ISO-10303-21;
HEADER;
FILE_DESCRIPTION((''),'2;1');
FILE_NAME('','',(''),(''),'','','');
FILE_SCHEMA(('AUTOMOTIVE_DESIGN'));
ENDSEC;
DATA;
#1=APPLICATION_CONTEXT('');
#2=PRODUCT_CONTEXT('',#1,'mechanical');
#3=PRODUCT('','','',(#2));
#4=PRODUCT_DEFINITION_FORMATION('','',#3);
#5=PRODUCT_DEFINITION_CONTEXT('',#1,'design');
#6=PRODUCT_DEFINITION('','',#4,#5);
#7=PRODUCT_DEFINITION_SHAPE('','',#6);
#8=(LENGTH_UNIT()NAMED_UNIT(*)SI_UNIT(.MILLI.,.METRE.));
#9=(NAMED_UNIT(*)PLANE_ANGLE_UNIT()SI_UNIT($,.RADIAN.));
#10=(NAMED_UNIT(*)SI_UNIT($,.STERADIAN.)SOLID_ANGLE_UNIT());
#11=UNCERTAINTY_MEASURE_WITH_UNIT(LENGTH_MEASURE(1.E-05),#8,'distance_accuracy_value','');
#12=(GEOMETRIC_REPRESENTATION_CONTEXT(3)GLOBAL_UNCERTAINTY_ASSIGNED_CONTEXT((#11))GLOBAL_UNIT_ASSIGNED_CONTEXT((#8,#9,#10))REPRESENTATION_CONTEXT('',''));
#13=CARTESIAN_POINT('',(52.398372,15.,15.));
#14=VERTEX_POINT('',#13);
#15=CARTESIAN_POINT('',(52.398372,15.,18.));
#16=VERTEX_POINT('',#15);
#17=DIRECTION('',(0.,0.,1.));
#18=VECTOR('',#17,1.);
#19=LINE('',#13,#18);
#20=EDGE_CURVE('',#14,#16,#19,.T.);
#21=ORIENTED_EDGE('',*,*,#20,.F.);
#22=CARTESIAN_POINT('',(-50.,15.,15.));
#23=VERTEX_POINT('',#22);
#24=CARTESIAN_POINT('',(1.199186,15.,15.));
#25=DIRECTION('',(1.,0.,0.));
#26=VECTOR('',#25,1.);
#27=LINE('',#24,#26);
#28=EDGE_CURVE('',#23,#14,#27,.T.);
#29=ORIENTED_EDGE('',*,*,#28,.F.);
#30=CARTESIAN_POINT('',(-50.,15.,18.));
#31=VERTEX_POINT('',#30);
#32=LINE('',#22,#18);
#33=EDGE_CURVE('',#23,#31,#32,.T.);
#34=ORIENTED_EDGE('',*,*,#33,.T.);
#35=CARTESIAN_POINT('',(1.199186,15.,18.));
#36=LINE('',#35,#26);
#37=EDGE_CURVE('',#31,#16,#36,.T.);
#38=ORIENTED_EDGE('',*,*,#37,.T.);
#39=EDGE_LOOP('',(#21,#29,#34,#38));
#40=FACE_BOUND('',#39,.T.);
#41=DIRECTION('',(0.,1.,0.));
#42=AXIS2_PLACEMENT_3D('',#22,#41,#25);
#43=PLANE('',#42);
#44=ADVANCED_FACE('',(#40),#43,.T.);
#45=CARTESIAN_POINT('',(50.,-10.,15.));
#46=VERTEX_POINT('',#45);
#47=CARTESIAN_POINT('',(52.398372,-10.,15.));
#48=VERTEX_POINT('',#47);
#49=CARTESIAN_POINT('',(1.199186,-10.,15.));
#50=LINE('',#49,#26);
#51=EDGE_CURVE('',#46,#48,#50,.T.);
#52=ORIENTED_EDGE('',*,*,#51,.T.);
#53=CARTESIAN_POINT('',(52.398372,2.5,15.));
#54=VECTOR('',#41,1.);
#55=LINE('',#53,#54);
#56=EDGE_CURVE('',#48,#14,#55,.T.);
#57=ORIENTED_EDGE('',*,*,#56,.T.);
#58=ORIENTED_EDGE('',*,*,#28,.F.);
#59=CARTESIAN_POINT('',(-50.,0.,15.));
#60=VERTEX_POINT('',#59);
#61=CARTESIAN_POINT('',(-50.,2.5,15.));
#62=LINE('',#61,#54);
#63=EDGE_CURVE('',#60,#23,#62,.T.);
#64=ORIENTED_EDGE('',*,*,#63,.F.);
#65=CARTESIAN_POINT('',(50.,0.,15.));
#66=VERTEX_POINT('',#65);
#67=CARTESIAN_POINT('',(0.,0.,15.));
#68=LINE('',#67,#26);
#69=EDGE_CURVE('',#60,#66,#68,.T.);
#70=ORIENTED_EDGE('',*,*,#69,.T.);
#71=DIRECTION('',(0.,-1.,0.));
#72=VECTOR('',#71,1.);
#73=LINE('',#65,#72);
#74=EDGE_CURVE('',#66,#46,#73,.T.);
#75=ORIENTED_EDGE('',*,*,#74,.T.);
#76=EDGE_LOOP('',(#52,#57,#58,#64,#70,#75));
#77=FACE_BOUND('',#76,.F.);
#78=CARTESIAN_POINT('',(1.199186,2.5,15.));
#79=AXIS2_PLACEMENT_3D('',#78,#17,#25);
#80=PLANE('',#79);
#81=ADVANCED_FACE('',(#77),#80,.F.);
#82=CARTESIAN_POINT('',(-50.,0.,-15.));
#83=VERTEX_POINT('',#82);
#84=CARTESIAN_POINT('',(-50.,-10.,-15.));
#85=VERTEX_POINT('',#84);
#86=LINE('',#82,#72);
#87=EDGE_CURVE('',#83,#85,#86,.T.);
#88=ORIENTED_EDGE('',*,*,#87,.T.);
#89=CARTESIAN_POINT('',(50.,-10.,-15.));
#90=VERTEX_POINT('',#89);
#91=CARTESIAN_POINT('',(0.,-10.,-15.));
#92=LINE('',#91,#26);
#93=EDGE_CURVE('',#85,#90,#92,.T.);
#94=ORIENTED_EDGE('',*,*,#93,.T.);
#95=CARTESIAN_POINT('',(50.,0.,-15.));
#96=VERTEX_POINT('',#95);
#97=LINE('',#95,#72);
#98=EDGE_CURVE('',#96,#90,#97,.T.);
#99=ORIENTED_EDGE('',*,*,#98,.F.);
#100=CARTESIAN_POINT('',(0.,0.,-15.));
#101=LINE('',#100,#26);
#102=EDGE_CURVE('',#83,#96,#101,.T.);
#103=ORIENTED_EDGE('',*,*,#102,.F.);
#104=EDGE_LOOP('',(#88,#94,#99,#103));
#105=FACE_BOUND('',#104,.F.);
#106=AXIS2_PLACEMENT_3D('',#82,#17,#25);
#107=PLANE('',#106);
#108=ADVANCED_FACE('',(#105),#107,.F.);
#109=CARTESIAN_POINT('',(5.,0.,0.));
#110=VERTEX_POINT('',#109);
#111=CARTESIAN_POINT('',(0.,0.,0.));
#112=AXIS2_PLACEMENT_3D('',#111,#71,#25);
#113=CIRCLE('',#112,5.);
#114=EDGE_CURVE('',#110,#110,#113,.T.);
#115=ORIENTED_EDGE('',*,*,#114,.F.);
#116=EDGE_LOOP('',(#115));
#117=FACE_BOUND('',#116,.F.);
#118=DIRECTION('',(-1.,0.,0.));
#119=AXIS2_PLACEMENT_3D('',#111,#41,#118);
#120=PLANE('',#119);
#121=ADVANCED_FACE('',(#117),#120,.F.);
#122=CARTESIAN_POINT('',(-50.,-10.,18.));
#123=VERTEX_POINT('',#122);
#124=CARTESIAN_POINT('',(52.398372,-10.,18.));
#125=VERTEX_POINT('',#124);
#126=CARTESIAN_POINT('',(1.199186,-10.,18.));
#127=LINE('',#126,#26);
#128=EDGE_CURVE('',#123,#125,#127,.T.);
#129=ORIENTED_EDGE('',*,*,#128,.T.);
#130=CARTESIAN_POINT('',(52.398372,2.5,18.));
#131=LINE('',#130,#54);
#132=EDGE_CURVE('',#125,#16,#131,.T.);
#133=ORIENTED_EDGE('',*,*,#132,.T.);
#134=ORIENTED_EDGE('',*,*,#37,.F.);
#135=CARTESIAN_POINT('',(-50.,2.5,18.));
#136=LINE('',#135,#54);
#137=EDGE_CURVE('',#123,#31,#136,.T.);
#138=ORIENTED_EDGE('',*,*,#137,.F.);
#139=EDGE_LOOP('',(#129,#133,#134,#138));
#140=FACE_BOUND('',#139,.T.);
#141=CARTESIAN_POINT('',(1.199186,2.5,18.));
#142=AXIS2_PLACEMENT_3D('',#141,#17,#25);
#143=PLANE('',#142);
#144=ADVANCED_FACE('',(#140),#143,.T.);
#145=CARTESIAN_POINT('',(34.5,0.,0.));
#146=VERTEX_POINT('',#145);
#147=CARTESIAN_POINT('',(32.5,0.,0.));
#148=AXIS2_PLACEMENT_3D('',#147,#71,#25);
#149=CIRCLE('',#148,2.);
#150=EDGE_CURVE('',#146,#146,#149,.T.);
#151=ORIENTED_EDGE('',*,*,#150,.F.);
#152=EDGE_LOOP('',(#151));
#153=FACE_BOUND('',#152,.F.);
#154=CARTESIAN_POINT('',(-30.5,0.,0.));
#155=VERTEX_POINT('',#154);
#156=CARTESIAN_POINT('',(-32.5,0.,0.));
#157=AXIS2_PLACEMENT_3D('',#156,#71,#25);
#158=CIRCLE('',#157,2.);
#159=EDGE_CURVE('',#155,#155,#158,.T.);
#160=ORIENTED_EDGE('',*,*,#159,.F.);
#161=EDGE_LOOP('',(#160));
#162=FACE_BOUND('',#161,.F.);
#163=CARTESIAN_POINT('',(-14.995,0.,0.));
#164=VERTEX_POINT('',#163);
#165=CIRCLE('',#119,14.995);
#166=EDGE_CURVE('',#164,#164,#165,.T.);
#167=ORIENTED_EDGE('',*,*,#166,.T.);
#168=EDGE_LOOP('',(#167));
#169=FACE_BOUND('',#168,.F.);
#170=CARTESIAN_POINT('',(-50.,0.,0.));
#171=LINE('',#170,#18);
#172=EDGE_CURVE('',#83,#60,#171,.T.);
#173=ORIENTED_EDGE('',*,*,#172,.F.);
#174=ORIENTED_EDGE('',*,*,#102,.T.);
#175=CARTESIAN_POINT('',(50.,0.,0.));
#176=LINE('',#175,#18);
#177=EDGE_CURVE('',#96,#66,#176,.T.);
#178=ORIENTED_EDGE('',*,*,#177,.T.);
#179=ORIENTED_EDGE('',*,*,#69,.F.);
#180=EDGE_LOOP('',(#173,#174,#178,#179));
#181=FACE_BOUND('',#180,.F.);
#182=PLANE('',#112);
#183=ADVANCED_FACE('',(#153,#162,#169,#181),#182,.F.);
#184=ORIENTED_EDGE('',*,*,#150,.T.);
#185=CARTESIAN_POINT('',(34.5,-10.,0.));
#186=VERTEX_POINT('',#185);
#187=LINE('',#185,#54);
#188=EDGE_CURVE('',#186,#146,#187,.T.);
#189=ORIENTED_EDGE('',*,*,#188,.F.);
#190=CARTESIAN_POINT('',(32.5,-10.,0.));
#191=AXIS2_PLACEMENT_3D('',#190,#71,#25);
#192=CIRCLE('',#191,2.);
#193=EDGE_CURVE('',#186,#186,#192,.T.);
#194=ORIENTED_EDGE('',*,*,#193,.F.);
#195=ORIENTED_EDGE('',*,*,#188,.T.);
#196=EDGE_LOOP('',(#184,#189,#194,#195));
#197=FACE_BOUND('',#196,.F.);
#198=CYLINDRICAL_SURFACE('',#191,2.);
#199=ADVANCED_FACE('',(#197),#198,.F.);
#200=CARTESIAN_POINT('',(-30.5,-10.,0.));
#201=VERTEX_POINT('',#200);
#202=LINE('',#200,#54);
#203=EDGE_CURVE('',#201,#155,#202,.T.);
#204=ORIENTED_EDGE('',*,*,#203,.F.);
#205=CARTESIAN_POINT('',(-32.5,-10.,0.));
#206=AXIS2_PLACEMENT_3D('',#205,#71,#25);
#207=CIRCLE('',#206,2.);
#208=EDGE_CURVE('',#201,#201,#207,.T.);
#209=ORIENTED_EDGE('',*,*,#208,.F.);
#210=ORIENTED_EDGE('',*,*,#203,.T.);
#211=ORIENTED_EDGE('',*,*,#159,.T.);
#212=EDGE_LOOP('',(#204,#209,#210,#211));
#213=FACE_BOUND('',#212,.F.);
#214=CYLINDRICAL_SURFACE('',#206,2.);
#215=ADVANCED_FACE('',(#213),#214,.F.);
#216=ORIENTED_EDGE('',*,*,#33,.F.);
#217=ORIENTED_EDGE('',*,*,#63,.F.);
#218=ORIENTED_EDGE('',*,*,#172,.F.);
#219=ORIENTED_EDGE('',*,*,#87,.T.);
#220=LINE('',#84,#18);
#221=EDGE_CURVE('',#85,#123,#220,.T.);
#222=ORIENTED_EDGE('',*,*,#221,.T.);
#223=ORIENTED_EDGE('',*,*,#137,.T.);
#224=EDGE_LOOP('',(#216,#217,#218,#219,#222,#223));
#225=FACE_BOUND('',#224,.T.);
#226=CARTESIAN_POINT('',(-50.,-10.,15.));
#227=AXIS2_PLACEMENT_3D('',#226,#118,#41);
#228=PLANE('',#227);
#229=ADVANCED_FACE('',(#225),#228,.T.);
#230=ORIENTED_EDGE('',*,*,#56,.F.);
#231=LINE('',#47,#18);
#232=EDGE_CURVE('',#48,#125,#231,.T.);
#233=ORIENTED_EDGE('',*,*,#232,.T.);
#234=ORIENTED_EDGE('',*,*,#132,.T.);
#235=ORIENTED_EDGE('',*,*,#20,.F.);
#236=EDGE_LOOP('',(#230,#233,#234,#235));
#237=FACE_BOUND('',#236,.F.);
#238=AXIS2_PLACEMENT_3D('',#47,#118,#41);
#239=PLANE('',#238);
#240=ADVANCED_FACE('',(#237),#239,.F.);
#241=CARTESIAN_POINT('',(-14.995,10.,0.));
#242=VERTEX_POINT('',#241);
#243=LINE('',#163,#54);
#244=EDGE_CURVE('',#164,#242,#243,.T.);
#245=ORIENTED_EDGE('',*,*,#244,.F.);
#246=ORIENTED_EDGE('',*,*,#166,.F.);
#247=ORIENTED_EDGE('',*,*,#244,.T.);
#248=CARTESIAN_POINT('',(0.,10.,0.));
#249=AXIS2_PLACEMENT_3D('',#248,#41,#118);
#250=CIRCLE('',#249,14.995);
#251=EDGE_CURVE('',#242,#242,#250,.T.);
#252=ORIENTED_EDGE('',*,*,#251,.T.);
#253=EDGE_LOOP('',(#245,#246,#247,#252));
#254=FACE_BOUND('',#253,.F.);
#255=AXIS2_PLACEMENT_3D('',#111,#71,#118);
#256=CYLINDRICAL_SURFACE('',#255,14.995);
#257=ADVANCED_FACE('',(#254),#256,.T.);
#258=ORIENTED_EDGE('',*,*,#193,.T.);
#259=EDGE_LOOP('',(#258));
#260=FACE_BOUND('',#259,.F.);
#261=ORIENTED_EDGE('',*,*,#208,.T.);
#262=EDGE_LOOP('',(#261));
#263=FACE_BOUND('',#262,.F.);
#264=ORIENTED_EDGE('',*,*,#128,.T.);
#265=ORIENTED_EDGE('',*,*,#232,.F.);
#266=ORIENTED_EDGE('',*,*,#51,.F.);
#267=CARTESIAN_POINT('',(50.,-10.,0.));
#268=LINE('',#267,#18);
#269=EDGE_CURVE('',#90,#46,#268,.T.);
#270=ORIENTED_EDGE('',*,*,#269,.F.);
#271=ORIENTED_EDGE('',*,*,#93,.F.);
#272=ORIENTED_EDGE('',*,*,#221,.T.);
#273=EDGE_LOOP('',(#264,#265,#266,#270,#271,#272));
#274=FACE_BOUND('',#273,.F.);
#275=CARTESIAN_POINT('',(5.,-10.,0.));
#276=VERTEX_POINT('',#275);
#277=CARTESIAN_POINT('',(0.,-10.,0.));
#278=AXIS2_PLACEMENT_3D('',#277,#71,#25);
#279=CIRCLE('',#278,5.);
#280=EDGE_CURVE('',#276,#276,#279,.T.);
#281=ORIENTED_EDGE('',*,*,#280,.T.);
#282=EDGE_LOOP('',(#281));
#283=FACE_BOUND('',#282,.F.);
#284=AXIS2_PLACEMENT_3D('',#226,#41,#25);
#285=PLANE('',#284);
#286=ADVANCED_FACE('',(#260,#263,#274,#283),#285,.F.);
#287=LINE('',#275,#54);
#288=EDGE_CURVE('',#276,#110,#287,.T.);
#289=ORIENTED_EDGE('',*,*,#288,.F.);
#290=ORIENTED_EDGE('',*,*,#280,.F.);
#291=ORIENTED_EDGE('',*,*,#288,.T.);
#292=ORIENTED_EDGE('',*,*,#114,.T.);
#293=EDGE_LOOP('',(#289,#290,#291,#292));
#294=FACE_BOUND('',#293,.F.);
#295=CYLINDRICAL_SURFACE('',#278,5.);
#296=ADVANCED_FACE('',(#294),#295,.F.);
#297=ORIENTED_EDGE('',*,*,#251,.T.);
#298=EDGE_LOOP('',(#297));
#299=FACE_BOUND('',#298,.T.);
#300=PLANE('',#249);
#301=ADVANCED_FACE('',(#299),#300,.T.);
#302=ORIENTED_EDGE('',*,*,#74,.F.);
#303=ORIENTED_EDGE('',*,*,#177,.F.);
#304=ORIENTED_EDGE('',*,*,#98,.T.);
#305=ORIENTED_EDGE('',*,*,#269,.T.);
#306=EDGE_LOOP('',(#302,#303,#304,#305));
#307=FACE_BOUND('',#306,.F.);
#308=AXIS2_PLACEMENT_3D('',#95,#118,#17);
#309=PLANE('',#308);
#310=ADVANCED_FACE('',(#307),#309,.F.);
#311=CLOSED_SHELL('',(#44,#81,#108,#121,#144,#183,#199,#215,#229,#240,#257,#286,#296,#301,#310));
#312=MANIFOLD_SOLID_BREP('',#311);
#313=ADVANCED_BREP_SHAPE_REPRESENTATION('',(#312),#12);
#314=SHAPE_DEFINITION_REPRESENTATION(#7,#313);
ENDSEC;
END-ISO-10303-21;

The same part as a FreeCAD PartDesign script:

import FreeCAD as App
import Part
import Sketcher

V = App.Vector
Q = App.Units.Quantity

doc = App.newDocument("Part")
body = doc.addObject("PartDesign::Body", "Body")

sketch1 = body.newObject("Sketcher::SketchObject", "Sketch")
sketch1.AttachmentSupport = (doc.getObject("XZ_Plane"), [""])
sketch1.MapMode = "FlatFace"
sketch1.addGeometry([
    Part.LineSegment(V(-50, 15, 0), V(-50, -15, 0)),
    Part.LineSegment(V(-50, -15, 0), V(50, -15, 0)),
    Part.LineSegment(V(50, -15, 0), V(50, 15, 0)),
    Part.LineSegment(V(50, 15, 0), V(-50, 15, 0)),
], False)
sketch1.addConstraint([
    Sketcher.Constraint("Coincident", 0, 2, 1, 1),
    Sketcher.Constraint("Coincident", 1, 2, 2, 1),
    Sketcher.Constraint("Coincident", 2, 2, 3, 1),
    Sketcher.Constraint("Coincident", 3, 2, 0, 1),
    Sketcher.Constraint("Vertical", 0),
    Sketcher.Constraint("Horizontal", 1),
    Sketcher.Constraint("Vertical", 2),
    Sketcher.Constraint("Horizontal", 3),
    Sketcher.Constraint("Symmetric", 0, 2, 2, 2, -1, 1),
    Sketcher.Constraint("DistanceX", 1, 1, 1, 2, Q("100 mm")),
    Sketcher.Constraint("DistanceY", 0, 2, 0, 1, Q("30 mm")),
])
pad1 = body.newObject("PartDesign::Pad", "Pad")
pad1.Profile = sketch1
pad1.Length = 10

sketch2 = body.newObject("Sketcher::SketchObject", "Sketch001")
sketch2.AttachmentSupport = (doc.getObject("XZ_Plane"), [""])
sketch2.MapMode = "FlatFace"
sketch2.AttachmentOffset = App.Placement(V(0, 0, 10), App.Rotation())
sketch2.addGeometry([
    Part.Circle(V(-32.5, 0, 0), V(0, 0, 1), 2),
    Part.Circle(V(32.5, 0, 0), V(0, 0, 1), 2),
    Part.Circle(V(0, 0, 0), V(0, 0, 1), 5),
], False)
sketch2.addConstraint([
    Sketcher.Constraint("Coincident", 2, 3, -1, 1),
    Sketcher.Constraint("Equal", 0, 1),
    Sketcher.Constraint("Symmetric", 0, 3, 1, 3, -1, 1),
    Sketcher.Constraint("PointOnObject", 0, 3, -1),
    Sketcher.Constraint("Diameter", 0, Q("4 mm")),
    Sketcher.Constraint("Diameter", 2, Q("10 mm")),
    Sketcher.Constraint("DistanceX", 0, 3, 1, 3, Q("65 mm")),
])
pocket1 = body.newObject("PartDesign::Pocket", "Pocket")
pocket1.Profile = sketch2
pocket1.Length = 25

sketch3 = body.newObject("Sketcher::SketchObject", "Sketch002")
sketch3.AttachmentSupport = (doc.getObject("XY_Plane"), [""])
sketch3.MapMode = "FlatFace"
sketch3.AttachmentOffset = App.Placement(V(0, 0, 15), App.Rotation())
sketch3.addGeometry([
    Part.LineSegment(V(-50, 15, 0), V(-50, -10, 0)),
    Part.LineSegment(V(-50, -10, 0), V(52.398372, -10, 0)),
    Part.LineSegment(V(52.398372, -10, 0), V(52.398372, 15, 0)),
    Part.LineSegment(V(52.398372, 15, 0), V(-50, 15, 0)),
], False)
sketch3.addConstraint([
    Sketcher.Constraint("Coincident", 0, 2, 1, 1),
    Sketcher.Constraint("Coincident", 1, 2, 2, 1),
    Sketcher.Constraint("Coincident", 2, 2, 3, 1),
    Sketcher.Constraint("Coincident", 3, 2, 0, 1),
    Sketcher.Constraint("Vertical", 0),
    Sketcher.Constraint("Horizontal", 1),
    Sketcher.Constraint("Vertical", 2),
    Sketcher.Constraint("Horizontal", 3),
    Sketcher.Constraint("DistanceY", 0, 2, 0, 1, Q("25 mm")),
    Sketcher.Constraint("DistanceX", 0, 2, -1, 1, Q("50 mm")),
    Sketcher.Constraint("DistanceY", 0, 2, -1, 1, Q("10 mm")),
    Sketcher.Constraint("DistanceX", 1, 1, 1, 2, Q("102.398372 mm")),
])
pad2 = body.newObject("PartDesign::Pad", "Pad001")
pad2.Profile = sketch3
pad2.Length = 3

sketch4 = body.newObject("Sketcher::SketchObject", "Sketch003")
sketch4.AttachmentSupport = (doc.getObject("XZ_Plane"), [""])
sketch4.MapMode = "FlatFace"
sketch4.addGeometry(Part.Circle(V(0, 0, 0), V(0, 0, 1), 14.995), False)
sketch4.addConstraint([
    Sketcher.Constraint("Coincident", 0, 3, -1, 1),
    Sketcher.Constraint("Diameter", 0, Q("29.99 mm")),
])
pad3 = body.newObject("PartDesign::Pad", "Pad002")
pad3.Profile = sketch4
pad3.Length = 10
pad3.Reversed = True

doc.recompute()
